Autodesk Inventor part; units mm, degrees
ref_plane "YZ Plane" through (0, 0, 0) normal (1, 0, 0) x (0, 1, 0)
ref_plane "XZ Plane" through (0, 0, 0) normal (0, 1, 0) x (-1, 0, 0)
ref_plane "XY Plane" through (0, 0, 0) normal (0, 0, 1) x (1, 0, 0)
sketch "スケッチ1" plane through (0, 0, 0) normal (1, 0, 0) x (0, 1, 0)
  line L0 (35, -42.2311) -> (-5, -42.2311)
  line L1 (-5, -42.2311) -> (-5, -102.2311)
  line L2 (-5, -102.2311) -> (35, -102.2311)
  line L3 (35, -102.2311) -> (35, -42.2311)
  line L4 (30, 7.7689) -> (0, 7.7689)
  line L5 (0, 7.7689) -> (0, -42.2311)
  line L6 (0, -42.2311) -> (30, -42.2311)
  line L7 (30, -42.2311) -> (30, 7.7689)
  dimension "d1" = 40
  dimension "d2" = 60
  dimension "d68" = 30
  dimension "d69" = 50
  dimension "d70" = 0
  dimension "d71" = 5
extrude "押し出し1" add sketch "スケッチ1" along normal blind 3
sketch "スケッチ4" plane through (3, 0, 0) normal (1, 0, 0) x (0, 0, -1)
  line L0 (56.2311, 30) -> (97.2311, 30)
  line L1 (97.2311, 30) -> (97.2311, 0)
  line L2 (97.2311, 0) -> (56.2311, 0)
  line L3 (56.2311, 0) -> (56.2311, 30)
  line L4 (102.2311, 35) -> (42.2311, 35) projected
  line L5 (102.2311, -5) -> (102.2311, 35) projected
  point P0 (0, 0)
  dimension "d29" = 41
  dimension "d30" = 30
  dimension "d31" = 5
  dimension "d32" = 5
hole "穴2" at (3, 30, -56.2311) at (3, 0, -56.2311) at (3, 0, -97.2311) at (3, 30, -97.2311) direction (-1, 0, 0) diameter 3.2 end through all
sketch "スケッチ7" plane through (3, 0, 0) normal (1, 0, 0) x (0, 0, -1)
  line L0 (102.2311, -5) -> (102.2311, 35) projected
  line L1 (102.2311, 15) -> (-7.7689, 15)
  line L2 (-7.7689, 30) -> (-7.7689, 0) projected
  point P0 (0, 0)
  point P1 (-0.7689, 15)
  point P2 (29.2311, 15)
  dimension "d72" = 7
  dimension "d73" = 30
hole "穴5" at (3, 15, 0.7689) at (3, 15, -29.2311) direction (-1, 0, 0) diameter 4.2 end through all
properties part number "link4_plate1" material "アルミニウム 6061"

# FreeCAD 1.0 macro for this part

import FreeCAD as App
import Part
import Sketcher
from FreeCAD import Vector
Q = App.Units.Quantity

doc = App.newDocument("Part")
body = doc.addObject("PartDesign::Body", "Body")

sketch1 = doc.addObject("Sketcher::SketchObject", "Sketch")
body.addObject(sketch1)
sketch1.AttachmentSupport = (doc.YZ_Plane, [""])
sketch1.MapMode = "FlatFace"
sketch1.addGeometry([
    Part.LineSegment(Vector(35, -102, 0), Vector(35, -42, 0)),
    Part.LineSegment(Vector(35, -42, 0), Vector(30, -42, 0)),
    Part.LineSegment(Vector(30, -42, 0), Vector(30, 8, 0)),
    Part.LineSegment(Vector(30, 8, 0), Vector(0, 8, 0)),
    Part.LineSegment(Vector(0, 8, 0), Vector(0, -42, 0)),
    Part.LineSegment(Vector(0, -42, 0), Vector(-5, -42, 0)),
    Part.LineSegment(Vector(-5, -42, 0), Vector(-5, -102, 0)),
    Part.LineSegment(Vector(-5, -102, 0), Vector(35, -102, 0)),
], False)
sketch1.addConstraint([
    Sketcher.Constraint("Coincident", 0, 2, 1, 1),
    Sketcher.Constraint("Coincident", 1, 2, 2, 1),
    Sketcher.Constraint("Coincident", 2, 2, 3, 1),
    Sketcher.Constraint("Coincident", 3, 2, 4, 1),
    Sketcher.Constraint("Coincident", 4, 2, 5, 1),
    Sketcher.Constraint("Coincident", 5, 2, 6, 1),
    Sketcher.Constraint("Coincident", 6, 2, 7, 1),
    Sketcher.Constraint("Coincident", 7, 2, 0, 1),
    Sketcher.Constraint("Vertical", 0),
    Sketcher.Constraint("Horizontal", 1),
    Sketcher.Constraint("Vertical", 2),
    Sketcher.Constraint("Horizontal", 3),
    Sketcher.Constraint("Vertical", 4),
    Sketcher.Constraint("Horizontal", 5),
    Sketcher.Constraint("Vertical", 6),
    Sketcher.Constraint("Horizontal", 7),
    Sketcher.Constraint("PointOnObject", 3, 2, -2),
    Sketcher.Constraint("Horizontal", 1, 2, 4, 2),
    Sketcher.Constraint("Equal", 1, 5),
    Sketcher.Constraint("DistanceX", 1, 2, 1, 1, Q("5 mm")),
    Sketcher.Constraint("DistanceX", 3, 2, 3, 1, Q("30 mm")),
    Sketcher.Constraint("DistanceY", 0, 1, 0, 2, Q("60 mm")),
    Sketcher.Constraint("DistanceY", 2, 1, 2, 2, Q("50 mm")),
    Sketcher.Constraint("DistanceY", 0, 2, -1, 1, Q("42.231 mm")),
])
pad1 = doc.addObject("PartDesign::Pad", "Pad")
body.addObject(pad1)
pad1.Profile = sketch1
pad1.Length = 3

sketch2 = doc.addObject("Sketcher::SketchObject", "Sketch001")
body.addObject(sketch2)
sketch2.AttachmentSupport = (doc.YZ_Plane, [""])
sketch2.MapMode = "FlatFace"
sketch2.AttachmentOffset = App.Placement(Vector(0, 0, 3), App.Rotation())
sketch2.addGeometry([
    Part.Circle(Vector(30, -56.2, 0), Vector(0, 0, 1), 1.6),
    Part.Circle(Vector(0, -56.2, 0), Vector(0, 0, 1), 1.6),
    Part.Circle(Vector(0, -97.2, 0), Vector(0, 0, 1), 1.6),
    Part.Circle(Vector(30, -97.2, 0), Vector(0, 0, 1), 1.6),
], False)
sketch2.addConstraint([
    Sketcher.Constraint("Equal", 0, 1),
    Sketcher.Constraint("Equal", 1, 2),
    Sketcher.Constraint("Equal", 2, 3),
    Sketcher.Constraint("PointOnObject", 1, 3, -2),
    Sketcher.Constraint("PointOnObject", 2, 3, -2),
    Sketcher.Constraint("Horizontal", 0, 3, 1, 3),
    Sketcher.Constraint("Horizontal", 2, 3, 3, 3),
    Sketcher.Constraint("Vertical", 0, 3, 3, 3),
    Sketcher.Constraint("Diameter", 0, Q("3.2 mm")),
    Sketcher.Constraint("DistanceX", -1, 1, 0, 3, Q("30 mm")),
    Sketcher.Constraint("DistanceY", 2, 3, 1, 3, Q("41 mm")),
    Sketcher.Constraint("DistanceY", 0, 3, -1, 1, Q("56.231 mm")),
])
doc.recompute()
hole = doc.addObject("PartDesign::Hole", "Hole")
body.addObject(hole)
hole.Profile = sketch2
hole.ThreadType = "None"
hole.Diameter = 3.2
hole.DepthType = "ThroughAll"

sketch3 = doc.addObject("Sketcher::SketchObject", "Sketch002")
body.addObject(sketch3)
sketch3.AttachmentSupport = (doc.YZ_Plane, [""])
sketch3.MapMode = "FlatFace"
sketch3.AttachmentOffset = App.Placement(Vector(0, 0, 3), App.Rotation())
sketch3.addGeometry([
    Part.Circle(Vector(15, 0.8, 0), Vector(0, 0, 1), 2.1),
    Part.Circle(Vector(15, -29.2, 0), Vector(0, 0, 1), 2.1),
], False)
sketch3.addConstraint([
    Sketcher.Constraint("Equal", 0, 1),
    Sketcher.Constraint("Vertical", 0, 3, 1, 3),
    Sketcher.Constraint("Diameter", 0, Q("4.2 mm")),
    Sketcher.Constraint("DistanceX", -1, 1, 0, 3, Q("15 mm")),
    Sketcher.Constraint("DistanceY", 1, 3, 0, 3, Q("30 mm")),
    Sketcher.Constraint("DistanceY", -1, 1, 0, 3, Q("0.769 mm")),
])
doc.recompute()
hole2 = doc.addObject("PartDesign::Hole", "Hole001")
body.addObject(hole2)
hole2.Profile = sketch3
hole2.ThreadType = "None"
hole2.Diameter = 4.2
hole2.DepthType = "ThroughAll"

doc.recompute()
